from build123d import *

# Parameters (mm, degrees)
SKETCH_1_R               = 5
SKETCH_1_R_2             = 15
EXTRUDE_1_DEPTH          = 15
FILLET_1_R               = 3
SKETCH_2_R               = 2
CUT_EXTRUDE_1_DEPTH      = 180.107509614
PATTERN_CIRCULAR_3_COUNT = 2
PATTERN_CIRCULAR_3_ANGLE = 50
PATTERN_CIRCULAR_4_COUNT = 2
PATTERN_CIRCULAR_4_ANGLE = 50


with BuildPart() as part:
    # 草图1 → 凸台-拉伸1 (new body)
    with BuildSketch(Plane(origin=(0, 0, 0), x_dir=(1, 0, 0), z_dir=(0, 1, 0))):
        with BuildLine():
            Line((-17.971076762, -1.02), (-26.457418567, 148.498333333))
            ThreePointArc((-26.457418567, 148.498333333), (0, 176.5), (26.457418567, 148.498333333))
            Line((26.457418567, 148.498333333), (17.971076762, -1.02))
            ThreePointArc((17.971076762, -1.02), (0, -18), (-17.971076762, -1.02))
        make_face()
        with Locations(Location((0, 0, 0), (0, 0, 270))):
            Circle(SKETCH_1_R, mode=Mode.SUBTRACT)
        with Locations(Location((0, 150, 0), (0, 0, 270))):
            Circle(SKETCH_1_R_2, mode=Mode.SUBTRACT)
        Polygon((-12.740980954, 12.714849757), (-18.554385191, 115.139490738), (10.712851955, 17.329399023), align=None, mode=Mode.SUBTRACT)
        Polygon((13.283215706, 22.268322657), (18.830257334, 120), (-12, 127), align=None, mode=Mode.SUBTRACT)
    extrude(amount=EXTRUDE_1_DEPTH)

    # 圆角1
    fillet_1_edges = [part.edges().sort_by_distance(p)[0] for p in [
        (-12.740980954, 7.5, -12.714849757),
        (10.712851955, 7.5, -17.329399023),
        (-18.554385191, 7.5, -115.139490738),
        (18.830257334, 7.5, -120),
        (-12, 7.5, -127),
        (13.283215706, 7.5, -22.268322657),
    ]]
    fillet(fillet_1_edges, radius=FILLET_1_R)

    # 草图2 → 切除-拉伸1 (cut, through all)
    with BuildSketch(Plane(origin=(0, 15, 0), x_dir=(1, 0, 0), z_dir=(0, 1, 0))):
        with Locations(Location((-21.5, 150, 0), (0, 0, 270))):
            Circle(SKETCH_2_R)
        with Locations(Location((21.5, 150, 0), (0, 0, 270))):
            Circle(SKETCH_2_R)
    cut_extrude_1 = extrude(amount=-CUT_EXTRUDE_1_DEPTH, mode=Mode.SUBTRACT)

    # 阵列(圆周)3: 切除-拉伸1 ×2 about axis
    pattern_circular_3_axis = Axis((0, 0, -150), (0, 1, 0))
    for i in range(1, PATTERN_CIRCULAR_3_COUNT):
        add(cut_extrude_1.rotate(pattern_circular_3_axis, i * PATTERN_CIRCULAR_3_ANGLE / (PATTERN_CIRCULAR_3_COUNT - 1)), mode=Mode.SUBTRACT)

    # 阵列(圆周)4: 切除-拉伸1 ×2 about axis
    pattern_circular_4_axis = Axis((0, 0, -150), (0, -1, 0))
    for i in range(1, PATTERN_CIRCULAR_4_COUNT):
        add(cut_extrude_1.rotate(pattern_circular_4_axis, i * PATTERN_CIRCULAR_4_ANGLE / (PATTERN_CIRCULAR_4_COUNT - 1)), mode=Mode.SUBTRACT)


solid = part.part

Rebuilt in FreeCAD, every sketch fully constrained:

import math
import FreeCAD as App
import Part
import Sketcher


def edges_at(feature, points):
    """Names of the edges that pass closest to the given points."""
    edges = feature.Shape.Edges
    near = lambda p: min(range(len(edges)), key=lambda i: edges[i].distToShape(Part.Vertex(*p))[0])
    return sorted({f"Edge{near(p) + 1}" for p in points})

doc = App.newDocument("Part")
body = doc.addObject("PartDesign::Body", "Body")

sketch1 = body.newObject("Sketcher::SketchObject", "Sketch")
sketch1.AttachmentSupport = (doc.getObject("XZ_Plane"), [""])
sketch1.MapMode = "FlatFace"
sketch1.addGeometry([
    Part.LineSegment(App.Vector(-26.457419, -148.498333, 0), App.Vector(-17.971077, 1.02, 0)),
    Part.ArcOfCircle(Part.Circle(App.Vector(0, 0, 0), App.Vector(0, 0, 1), 18), math.radians(3.248501), math.radians(176.751499)),
    Part.LineSegment(App.Vector(17.971077, 1.02, 0), App.Vector(26.457419, -148.498333, 0)),
    Part.ArcOfCircle(Part.Circle(App.Vector(0, -150, 0), App.Vector(0, 0, 1), 26.5), math.radians(176.751499), math.radians(363.248501)),
    Part.LineSegment(App.Vector(13.283216, -22.268323, 0), App.Vector(-12, -127, 0)),
    Part.LineSegment(App.Vector(-12, -127, 0), App.Vector(18.830257, -120, 0)),
    Part.LineSegment(App.Vector(18.830257, -120, 0), App.Vector(13.283216, -22.268323, 0)),
    Part.Circle(App.Vector(0, 0, 0), App.Vector(0, 0, 1), 5),
    Part.LineSegment(App.Vector(-12.740981, -12.71485, 0), App.Vector(-18.554385, -115.139491, 0)),
    Part.LineSegment(App.Vector(-18.554385, -115.139491, 0), App.Vector(10.712852, -17.329399, 0)),
    Part.LineSegment(App.Vector(10.712852, -17.329399, 0), App.Vector(-12.740981, -12.71485, 0)),
    Part.Circle(App.Vector(0, -150, 0), App.Vector(0, 0, 1), 15),
], False)
sketch1.addConstraint([
    Sketcher.Constraint("Tangent", 0, 2, 1, 2),
    Sketcher.Constraint("Tangent", 1, 1, 2, 1),
    Sketcher.Constraint("Tangent", 2, 2, 3, 2),
    Sketcher.Constraint("Tangent", 3, 1, 0, 1),
    Sketcher.Constraint("Coincident", 4, 2, 5, 1),
    Sketcher.Constraint("Coincident", 5, 2, 6, 1),
    Sketcher.Constraint("Coincident", 6, 2, 4, 1),
    Sketcher.Constraint("Coincident", 8, 2, 9, 1),
    Sketcher.Constraint("Coincident", 9, 2, 10, 1),
    Sketcher.Constraint("Coincident", 10, 2, 8, 1),
    Sketcher.Constraint("Coincident", 1, 3, -1, 1),
    Sketcher.Constraint("Coincident", 7, 3, -1, 1),
    Sketcher.Constraint("Coincident", 11, 3, 3, 3),
    Sketcher.Constraint("PointOnObject", 3, 3, -2),
    Sketcher.Constraint("Parallel", 2, 6),
    Sketcher.Constraint("Parallel", 0, 8),
    Sketcher.Constraint("Diameter", 7, 10.0),
    Sketcher.Constraint("Diameter", 11, 30.0),
    Sketcher.Constraint("Radius", 1, 18.0),
    Sketcher.Constraint("Radius", 3, 26.5),
    Sketcher.Constraint("DistanceY", 3, 3, -1, 1, 150.0),
    Sketcher.Constraint("DistanceX", 4, 2, -1, 1, 12.0),
    Sketcher.Constraint("DistanceY", 4, 2, -1, 1, 127.0),
    Sketcher.Constraint("DistanceY", 5, 2, -1, 1, 120.0),
    Sketcher.Constraint("DistanceY", 9, 2, -1, 1, 17.329399),
    Sketcher.Constraint("Distance", 6, 97.88897),
    Sketcher.Constraint("Distance", 9, 102.094981),
    Sketcher.Constraint("Distance", 10, 23.90348),
    Sketcher.Constraint("DistanceY", 8, 2, -1, 1, 115.139491),
    Sketcher.Constraint("DistanceX", -1, 1, 9, 2, 10.712852),
    Sketcher.Constraint("DistanceX", 5, 2, 2, 2, 7.627161),
])
pad1 = body.newObject("PartDesign::Pad", "Pad")
pad1.Profile = sketch1
pad1.Length = 15
pad1.Reversed = True
doc.recompute()

fillet = body.newObject("PartDesign::Fillet", "Fillet")
fillet.Base = (pad1, edges_at(pad1, [
    (-12.741, 7.5, -12.715),
    (10.713, 7.5, -17.329),
    (-18.554, 7.5, -115.139),
    (18.83, 7.5, -120),
    (-12, 7.5, -127),
    (13.283, 7.5, -22.268),
]))
fillet.Radius = 3

sketch2 = body.newObject("Sketcher::SketchObject", "Sketch001")
sketch2.AttachmentSupport = (doc.getObject("XZ_Plane"), [""])
sketch2.MapMode = "FlatFace"
sketch2.AttachmentOffset = App.Placement(App.Vector(0, 0, -15), App.Rotation())
sketch2.addGeometry([
    Part.Circle(App.Vector(-21.5, -150, 0), App.Vector(0, 0, 1), 2),
    Part.Circle(App.Vector(21.5, -150, 0), App.Vector(0, 0, 1), 2),
], False)
sketch2.addConstraint([
    Sketcher.Constraint("Equal", 0, 1),
    Sketcher.Constraint("Symmetric", 0, 3, 1, 3, -2),
    Sketcher.Constraint("Diameter", 0, 4.0),
    Sketcher.Constraint("DistanceY", 0, 3, -1, 1, 150.0),
    Sketcher.Constraint("DistanceX", 0, 3, 1, 3, 43.0),
])
pocket1 = body.newObject("PartDesign::Pocket", "Pocket")
pocket1.Profile = sketch2
pocket1.Type = "ThroughAll"
pocket1.Reversed = True
doc.recompute()

datumline = body.newObject("PartDesign::Line", "DatumLine")
datumline.Placement = App.Placement(App.Vector(0, 0, -150), App.Rotation(App.Vector(0, 0, 1), App.Vector(0, 1, 0)))
polarpattern = body.newObject("PartDesign::PolarPattern", "PolarPattern")
polarpattern.Originals = [pocket1]
polarpattern.Axis = (datumline, [""])
polarpattern.Angle = 50
polarpattern.Occurrences = 2
body.Tip = polarpattern
doc.recompute()

datumline2 = body.newObject("PartDesign::Line", "DatumLine001")
datumline2.Placement = App.Placement(App.Vector(0, 0, -150), App.Rotation(App.Vector(0, 0, 1), App.Vector(0, -1, 0)))
polarpattern2 = body.newObject("PartDesign::PolarPattern", "PolarPattern001")
polarpattern2.Originals = [pocket1]
polarpattern2.Axis = (datumline2, [""])
polarpattern2.Angle = 50
polarpattern2.Occurrences = 2
body.Tip = polarpattern2

doc.recompute()
